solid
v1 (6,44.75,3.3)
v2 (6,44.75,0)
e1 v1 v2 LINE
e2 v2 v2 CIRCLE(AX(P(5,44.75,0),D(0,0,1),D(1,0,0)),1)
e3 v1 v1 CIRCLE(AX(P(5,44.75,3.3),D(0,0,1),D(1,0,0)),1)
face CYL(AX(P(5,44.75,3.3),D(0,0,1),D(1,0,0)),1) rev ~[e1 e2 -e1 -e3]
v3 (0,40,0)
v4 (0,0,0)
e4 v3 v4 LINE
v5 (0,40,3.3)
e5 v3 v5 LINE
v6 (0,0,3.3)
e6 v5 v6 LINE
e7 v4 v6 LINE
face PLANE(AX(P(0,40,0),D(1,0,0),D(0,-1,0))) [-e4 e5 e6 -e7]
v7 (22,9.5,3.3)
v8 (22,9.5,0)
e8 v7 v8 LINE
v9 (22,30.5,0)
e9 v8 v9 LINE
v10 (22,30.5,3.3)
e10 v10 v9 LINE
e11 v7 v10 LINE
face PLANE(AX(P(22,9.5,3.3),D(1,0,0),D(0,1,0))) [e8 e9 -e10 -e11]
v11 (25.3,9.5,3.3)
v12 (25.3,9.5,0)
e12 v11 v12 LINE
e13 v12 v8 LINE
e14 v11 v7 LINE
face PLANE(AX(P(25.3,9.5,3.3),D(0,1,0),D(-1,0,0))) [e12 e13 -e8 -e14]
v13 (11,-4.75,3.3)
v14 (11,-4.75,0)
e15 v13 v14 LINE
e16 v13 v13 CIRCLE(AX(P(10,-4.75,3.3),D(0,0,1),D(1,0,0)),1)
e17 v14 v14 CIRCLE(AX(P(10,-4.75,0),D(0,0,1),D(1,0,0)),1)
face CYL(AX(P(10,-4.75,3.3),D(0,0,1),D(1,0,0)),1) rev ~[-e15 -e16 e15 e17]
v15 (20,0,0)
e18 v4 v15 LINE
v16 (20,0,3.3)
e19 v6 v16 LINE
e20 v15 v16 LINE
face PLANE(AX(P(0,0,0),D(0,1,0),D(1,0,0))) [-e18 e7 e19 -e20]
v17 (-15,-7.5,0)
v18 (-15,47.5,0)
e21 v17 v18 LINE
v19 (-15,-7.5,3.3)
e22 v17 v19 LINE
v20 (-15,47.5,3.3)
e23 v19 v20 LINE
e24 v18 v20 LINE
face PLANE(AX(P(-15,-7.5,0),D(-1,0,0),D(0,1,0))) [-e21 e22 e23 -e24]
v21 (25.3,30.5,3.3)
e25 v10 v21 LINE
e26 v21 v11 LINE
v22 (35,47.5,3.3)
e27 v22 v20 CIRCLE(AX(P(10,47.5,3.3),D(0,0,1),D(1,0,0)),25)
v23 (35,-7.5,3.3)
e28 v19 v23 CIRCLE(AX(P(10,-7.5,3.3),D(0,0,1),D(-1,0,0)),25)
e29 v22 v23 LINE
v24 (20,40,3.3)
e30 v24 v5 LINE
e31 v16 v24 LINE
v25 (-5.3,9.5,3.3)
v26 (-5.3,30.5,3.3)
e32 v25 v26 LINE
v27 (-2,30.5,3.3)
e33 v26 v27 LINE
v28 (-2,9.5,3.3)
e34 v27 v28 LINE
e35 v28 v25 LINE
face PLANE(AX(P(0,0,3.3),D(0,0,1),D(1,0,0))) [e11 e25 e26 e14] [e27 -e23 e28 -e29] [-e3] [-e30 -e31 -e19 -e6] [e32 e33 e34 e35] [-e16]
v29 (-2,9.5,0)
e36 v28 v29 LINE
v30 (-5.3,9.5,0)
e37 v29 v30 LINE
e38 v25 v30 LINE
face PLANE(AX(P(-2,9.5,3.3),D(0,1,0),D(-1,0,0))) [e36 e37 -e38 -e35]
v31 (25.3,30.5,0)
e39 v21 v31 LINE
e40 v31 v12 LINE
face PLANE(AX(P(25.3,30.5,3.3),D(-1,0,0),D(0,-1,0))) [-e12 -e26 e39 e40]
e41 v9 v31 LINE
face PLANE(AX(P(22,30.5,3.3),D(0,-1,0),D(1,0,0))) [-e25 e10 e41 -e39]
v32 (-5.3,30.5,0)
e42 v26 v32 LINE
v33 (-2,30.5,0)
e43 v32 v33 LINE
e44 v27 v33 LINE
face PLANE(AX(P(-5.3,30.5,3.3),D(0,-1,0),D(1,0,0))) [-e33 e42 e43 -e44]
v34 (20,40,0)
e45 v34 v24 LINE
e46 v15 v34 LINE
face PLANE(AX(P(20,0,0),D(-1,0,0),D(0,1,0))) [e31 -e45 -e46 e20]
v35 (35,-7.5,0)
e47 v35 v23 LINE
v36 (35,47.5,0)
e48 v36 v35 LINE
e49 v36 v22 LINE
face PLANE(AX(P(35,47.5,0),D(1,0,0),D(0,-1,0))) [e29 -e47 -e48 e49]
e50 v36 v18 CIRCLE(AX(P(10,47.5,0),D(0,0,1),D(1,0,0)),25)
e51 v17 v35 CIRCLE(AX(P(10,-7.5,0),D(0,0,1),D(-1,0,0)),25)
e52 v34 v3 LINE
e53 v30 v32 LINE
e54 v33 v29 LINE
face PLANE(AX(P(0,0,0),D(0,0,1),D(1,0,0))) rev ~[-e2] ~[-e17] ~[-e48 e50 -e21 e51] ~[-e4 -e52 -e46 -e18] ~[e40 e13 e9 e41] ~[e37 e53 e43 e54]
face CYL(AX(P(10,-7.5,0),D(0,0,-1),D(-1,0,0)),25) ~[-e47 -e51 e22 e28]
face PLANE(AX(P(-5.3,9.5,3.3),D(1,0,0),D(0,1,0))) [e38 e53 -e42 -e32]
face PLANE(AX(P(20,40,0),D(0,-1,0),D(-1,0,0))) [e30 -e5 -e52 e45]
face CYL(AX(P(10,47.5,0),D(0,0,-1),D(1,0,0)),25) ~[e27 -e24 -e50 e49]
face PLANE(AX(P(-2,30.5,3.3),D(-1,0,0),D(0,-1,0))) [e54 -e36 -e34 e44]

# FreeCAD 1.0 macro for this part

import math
import FreeCAD as App
import Part
import Sketcher

V = App.Vector

doc = App.newDocument("Part")
params = doc.addObject("Spreadsheet::Sheet", "Params")
for row, (alias, value) in enumerate([
    ("sketch1_width", "20 mm"),
    ("sketch1_height", "55 mm"),
    ("sketch1_height2", "40 mm"),
    ("sketch1_radius", "25 mm"),
    ("pad1_length", "3.3 mm"),
    ("sketch2_height", "21 mm"),
    ("sketch2_width", "3.3 mm"),
    ("pocket1_length", "3.3 mm"),
    ("sketch3_diameter", "2 mm"),
    ("pocket2_length", "3.3 mm"),
], start=1):
    params.set(f"A{row}", alias)
    params.set(f"B{row}", "=" + value)
    params.setAlias(f"B{row}", alias)

body = doc.addObject("PartDesign::Body", "Body")

sketch1 = body.newObject("Sketcher::SketchObject", "Sketch")
sketch1.AttachmentSupport = (doc.getObject("XY_Plane"), [""])
sketch1.MapMode = "FlatFace"
sketch1.addGeometry(Part.LineSegment(V(-15, 47.5, 0), V(-15, -7.5, 0)), False)
sketch1.addGeometry(Part.ArcOfCircle(Part.Circle(V(10, -7.5, 0), V(0, 0, 1), 25), math.radians(180), math.radians(360)), False)
sketch1.addGeometry(Part.LineSegment(V(35, -7.5, 0), V(35, 47.5, 0)), False)
sketch1.addGeometry(Part.ArcOfCircle(Part.Circle(V(10, 47.5, 0), V(0, 0, 1), 25), math.radians(0), math.radians(180)), False)
sketch1.addGeometry(Part.LineSegment(V(20, 0, 0), V(0, 0, 0)), False)
sketch1.addGeometry(Part.LineSegment(V(0, 0, 0), V(0, 40, 0)), False)
sketch1.addGeometry(Part.LineSegment(V(0, 40, 0), V(20, 40, 0)), False)
sketch1.addGeometry(Part.LineSegment(V(20, 40, 0), V(20, 0, 0)), False)
sketch1.addConstraint(Sketcher.Constraint("Tangent", 0, 2, 1, 1))
sketch1.addConstraint(Sketcher.Constraint("Tangent", 1, 2, 2, 1))
sketch1.addConstraint(Sketcher.Constraint("Tangent", 2, 2, 3, 1))
sketch1.addConstraint(Sketcher.Constraint("Tangent", 3, 2, 0, 1))
sketch1.addConstraint(Sketcher.Constraint("Coincident", 4, 2, 5, 1))
sketch1.addConstraint(Sketcher.Constraint("Coincident", 5, 2, 6, 1))
sketch1.addConstraint(Sketcher.Constraint("Coincident", 6, 2, 7, 1))
sketch1.addConstraint(Sketcher.Constraint("Coincident", 7, 2, 4, 1))
sketch1.addConstraint(Sketcher.Constraint("Vertical", 0))
sketch1.addConstraint(Sketcher.Constraint("Vertical", 2))
sketch1.addConstraint(Sketcher.Constraint("Horizontal", 4))
sketch1.addConstraint(Sketcher.Constraint("Vertical", 5))
sketch1.addConstraint(Sketcher.Constraint("Horizontal", 6))
sketch1.addConstraint(Sketcher.Constraint("Vertical", 7))
sketch1.addConstraint(Sketcher.Constraint("Coincident", 4, 2, -1, 1))
sketch1.addConstraint(Sketcher.Constraint("DistanceX", 4, 2, 4, 1, 20.0))
sketch1.addConstraint(Sketcher.Constraint("DistanceY", 0, 2, 0, 1, 55.0))
sketch1.addConstraint(Sketcher.Constraint("DistanceY", 5, 1, 5, 2, 40.0))
sketch1.addConstraint(Sketcher.Constraint("DistanceX", 0, 2, -1, 1, 15.0))
sketch1.addConstraint(Sketcher.Constraint("Radius", 1, 25.0))
sketch1.addConstraint(Sketcher.Constraint("DistanceY", 1, 3, -1, 1, 7.5))
sketch1.setExpression("Constraints[15]", "Params.sketch1_width")
sketch1.setExpression("Constraints[16]", "Params.sketch1_height")
sketch1.setExpression("Constraints[17]", "Params.sketch1_height2")
sketch1.setExpression("Constraints[19]", "Params.sketch1_radius")
pad1 = body.newObject("PartDesign::Pad", "Pad")
pad1.Profile = sketch1
pad1.setExpression("Length", "Params.pad1_length")

sketch2 = body.newObject("Sketcher::SketchObject", "Sketch001")
sketch2.AttachmentSupport = (doc.getObject("XY_Plane"), [""])
sketch2.MapMode = "FlatFace"
sketch2.AttachmentOffset = App.Placement(V(0, 0, 3.3), App.Rotation())
sketch2.addGeometry(Part.LineSegment(V(25.3, 30.5, 0), V(22, 30.5, 0)), False)
sketch2.addGeometry(Part.LineSegment(V(22, 30.5, 0), V(22, 9.5, 0)), False)
sketch2.addGeometry(Part.LineSegment(V(22, 9.5, 0), V(25.3, 9.5, 0)), False)
sketch2.addGeometry(Part.LineSegment(V(25.3, 9.5, 0), V(25.3, 30.5, 0)), False)
sketch2.addGeometry(Part.LineSegment(V(-2, 30.5, 0), V(-5.3, 30.5, 0)), False)
sketch2.addGeometry(Part.LineSegment(V(-5.3, 30.5, 0), V(-5.3, 9.5, 0)), False)
sketch2.addGeometry(Part.LineSegment(V(-5.3, 9.5, 0), V(-2, 9.5, 0)), False)
sketch2.addGeometry(Part.LineSegment(V(-2, 9.5, 0), V(-2, 30.5, 0)), False)
sketch2.addConstraint(Sketcher.Constraint("Coincident", 0, 2, 1, 1))
sketch2.addConstraint(Sketcher.Constraint("Coincident", 1, 2, 2, 1))
sketch2.addConstraint(Sketcher.Constraint("Coincident", 2, 2, 3, 1))
sketch2.addConstraint(Sketcher.Constraint("Coincident", 3, 2, 0, 1))
sketch2.addConstraint(Sketcher.Constraint("Coincident", 4, 2, 5, 1))
sketch2.addConstraint(Sketcher.Constraint("Coincident", 5, 2, 6, 1))
sketch2.addConstraint(Sketcher.Constraint("Coincident", 6, 2, 7, 1))
sketch2.addConstraint(Sketcher.Constraint("Coincident", 7, 2, 4, 1))
sketch2.addConstraint(Sketcher.Constraint("Horizontal", 0))
sketch2.addConstraint(Sketcher.Constraint("Vertical", 1))
sketch2.addConstraint(Sketcher.Constraint("Horizontal", 2))
sketch2.addConstraint(Sketcher.Constraint("Vertical", 3))
sketch2.addConstraint(Sketcher.Constraint("Horizontal", 4))
sketch2.addConstraint(Sketcher.Constraint("Vertical", 5))
sketch2.addConstraint(Sketcher.Constraint("Horizontal", 6))
sketch2.addConstraint(Sketcher.Constraint("Vertical", 7))
sketch2.addConstraint(Sketcher.Constraint("Horizontal", 3, 2, 4, 2))
sketch2.addConstraint(Sketcher.Constraint("Horizontal", 2, 2, 5, 2))
sketch2.addConstraint(Sketcher.Constraint("Equal", 2, 4))
sketch2.addConstraint(Sketcher.Constraint("DistanceY", 1, 2, 1, 1, 21.0))
sketch2.addConstraint(Sketcher.Constraint("DistanceX", 0, 2, 0, 1, 3.3))
sketch2.addConstraint(Sketcher.Constraint("DistanceX", 6, 2, -1, 1, 2.0))
sketch2.addConstraint(Sketcher.Constraint("DistanceY", -1, 1, 1, 2, 9.5))
sketch2.addConstraint(Sketcher.Constraint("DistanceX", -1, 1, 0, 2, 22.0))
sketch2.setExpression("Constraints[19]", "Params.sketch2_height")
sketch2.setExpression("Constraints[20]", "Params.sketch2_width")
pocket1 = body.newObject("PartDesign::Pocket", "Pocket")
pocket1.Profile = sketch2
pocket1.setExpression("Length", "Params.pocket1_length")

sketch3 = body.newObject("Sketcher::SketchObject", "Sketch002")
sketch3.AttachmentSupport = (doc.getObject("XY_Plane"), [""])
sketch3.MapMode = "FlatFace"
sketch3.AttachmentOffset = App.Placement(V(0, 0, 3.3), App.Rotation())
sketch3.addGeometry(Part.Circle(V(5, 44.75, 0), V(0, 0, 1), 1), False)
sketch3.addGeometry(Part.Circle(V(10, -4.75, 0), V(0, 0, 1), 1), False)
sketch3.addConstraint(Sketcher.Constraint("Equal", 0, 1))
sketch3.addConstraint(Sketcher.Constraint("Diameter", 0, 2.0))
sketch3.addConstraint(Sketcher.Constraint("DistanceX", -1, 1, 0, 3, 5.0))
sketch3.addConstraint(Sketcher.Constraint("DistanceX", -1, 1, 1, 3, 10.0))
sketch3.addConstraint(Sketcher.Constraint("DistanceY", 1, 3, -1, 1, 4.75))
sketch3.addConstraint(Sketcher.Constraint("DistanceY", 1, 3, 0, 3, 49.5))
sketch3.setExpression("Constraints[1]", "Params.sketch3_diameter")
pocket2 = body.newObject("PartDesign::Pocket", "Pocket001")
pocket2.Profile = sketch3
pocket2.setExpression("Length", "Params.pocket2_length")

doc.recompute()
